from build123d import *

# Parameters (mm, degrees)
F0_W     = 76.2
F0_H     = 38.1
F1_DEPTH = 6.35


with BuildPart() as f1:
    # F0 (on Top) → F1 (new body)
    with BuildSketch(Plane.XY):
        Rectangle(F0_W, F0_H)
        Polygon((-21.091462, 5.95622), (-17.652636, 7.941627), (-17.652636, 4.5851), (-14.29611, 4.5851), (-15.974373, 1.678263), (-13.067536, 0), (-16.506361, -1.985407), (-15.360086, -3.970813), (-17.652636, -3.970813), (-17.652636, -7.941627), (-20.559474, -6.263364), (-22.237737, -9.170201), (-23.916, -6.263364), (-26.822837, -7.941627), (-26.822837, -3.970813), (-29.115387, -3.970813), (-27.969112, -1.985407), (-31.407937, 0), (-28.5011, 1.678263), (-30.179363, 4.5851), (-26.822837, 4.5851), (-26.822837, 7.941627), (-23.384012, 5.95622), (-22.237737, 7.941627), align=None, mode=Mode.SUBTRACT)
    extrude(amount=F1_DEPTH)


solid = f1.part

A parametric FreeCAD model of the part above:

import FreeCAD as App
import Part
import Sketcher

V = App.Vector
Q = App.Units.Quantity

doc = App.newDocument("Part")
body = doc.addObject("PartDesign::Body", "Body")

# Sketch on XY plane
sketch1 = body.newObject("Sketcher::SketchObject", "Sketch")
sketch1.AttachmentSupport = (doc.getObject("XY_Plane"), [""])
sketch1.MapMode = "FlatFace"
sketch1.addGeometry(Part.LineSegment(V(-38.1, 19.1, 0), V(-38.1, -19.1, 0)), False)
sketch1.addGeometry(Part.LineSegment(V(-38.1, -19.1, 0), V(38.1, -19.1, 0)), False)
sketch1.addGeometry(Part.LineSegment(V(38.1, -19.1, 0), V(38.1, 19.1, 0)), False)
sketch1.addGeometry(Part.LineSegment(V(38.1, 19.1, 0), V(-38.1, 19.1, 0)), False)
sketch1.addGeometry(Part.LineSegment(V(-22.2, 7.9, 0), V(-21.1, 6, 0)), False)
sketch1.addGeometry(Part.LineSegment(V(-21.1, 6, 0), V(-17.7, 7.9, 0)), False)
sketch1.addGeometry(Part.LineSegment(V(-17.7, 7.9, 0), V(-17.7, 4.6, 0)), False)
sketch1.addGeometry(Part.LineSegment(V(-17.7, 4.6, 0), V(-14.3, 4.6, 0)), False)
sketch1.addGeometry(Part.LineSegment(V(-14.3, 4.6, 0), V(-16, 1.7, 0)), False)
sketch1.addGeometry(Part.LineSegment(V(-16, 1.7, 0), V(-13.1, 0, 0)), False)
sketch1.addGeometry(Part.LineSegment(V(-13.1, 0, 0), V(-16.5, -2, 0)), False)
sketch1.addGeometry(Part.LineSegment(V(-16.5, -2, 0), V(-15.4, -4, 0)), False)
sketch1.addGeometry(Part.LineSegment(V(-15.4, -4, 0), V(-17.7, -4, 0)), False)
sketch1.addGeometry(Part.LineSegment(V(-17.7, -4, 0), V(-17.7, -7.9, 0)), False)
sketch1.addGeometry(Part.LineSegment(V(-17.7, -7.9, 0), V(-20.6, -6.3, 0)), False)
sketch1.addGeometry(Part.LineSegment(V(-20.6, -6.3, 0), V(-22.2, -9.2, 0)), False)
sketch1.addGeometry(Part.LineSegment(V(-22.2, -9.2, 0), V(-23.9, -6.3, 0)), False)
sketch1.addGeometry(Part.LineSegment(V(-23.9, -6.3, 0), V(-26.8, -7.9, 0)), False)
sketch1.addGeometry(Part.LineSegment(V(-26.8, -7.9, 0), V(-26.8, -4, 0)), False)
sketch1.addGeometry(Part.LineSegment(V(-26.8, -4, 0), V(-29.1, -4, 0)), False)
sketch1.addGeometry(Part.LineSegment(V(-29.1, -4, 0), V(-28, -2, 0)), False)
sketch1.addGeometry(Part.LineSegment(V(-28, -2, 0), V(-31.4, 0, 0)), False)
sketch1.addGeometry(Part.LineSegment(V(-31.4, 0, 0), V(-28.5, 1.7, 0)), False)
sketch1.addGeometry(Part.LineSegment(V(-28.5, 1.7, 0), V(-30.2, 4.6, 0)), False)
sketch1.addGeometry(Part.LineSegment(V(-30.2, 4.6, 0), V(-26.8, 4.6, 0)), False)
sketch1.addGeometry(Part.LineSegment(V(-26.8, 4.6, 0), V(-26.8, 7.9, 0)), False)
sketch1.addGeometry(Part.LineSegment(V(-26.8, 7.9, 0), V(-23.4, 6, 0)), False)
sketch1.addGeometry(Part.LineSegment(V(-23.4, 6, 0), V(-22.2, 7.9, 0)), False)
sketch1.addConstraint(Sketcher.Constraint("Coincident", 0, 2, 1, 1))
sketch1.addConstraint(Sketcher.Constraint("Coincident", 1, 2, 2, 1))
sketch1.addConstraint(Sketcher.Constraint("Coincident", 2, 2, 3, 1))
sketch1.addConstraint(Sketcher.Constraint("Coincident", 3, 2, 0, 1))
sketch1.addConstraint(Sketcher.Constraint("Coincident", 4, 2, 5, 1))
sketch1.addConstraint(Sketcher.Constraint("Coincident", 5, 2, 6, 1))
sketch1.addConstraint(Sketcher.Constraint("Coincident", 6, 2, 7, 1))
sketch1.addConstraint(Sketcher.Constraint("Coincident", 7, 2, 8, 1))
sketch1.addConstraint(Sketcher.Constraint("Coincident", 8, 2, 9, 1))
sketch1.addConstraint(Sketcher.Constraint("Coincident", 9, 2, 10, 1))
sketch1.addConstraint(Sketcher.Constraint("Coincident", 10, 2, 11, 1))
sketch1.addConstraint(Sketcher.Constraint("Coincident", 11, 2, 12, 1))
sketch1.addConstraint(Sketcher.Constraint("Coincident", 12, 2, 13, 1))
sketch1.addConstraint(Sketcher.Constraint("Coincident", 13, 2, 14, 1))
sketch1.addConstraint(Sketcher.Constraint("Coincident", 14, 2, 15, 1))
sketch1.addConstraint(Sketcher.Constraint("Coincident", 15, 2, 16, 1))
sketch1.addConstraint(Sketcher.Constraint("Coincident", 16, 2, 17, 1))
sketch1.addConstraint(Sketcher.Constraint("Coincident", 17, 2, 18, 1))
sketch1.addConstraint(Sketcher.Constraint("Coincident", 18, 2, 19, 1))
sketch1.addConstraint(Sketcher.Constraint("Coincident", 19, 2, 20, 1))
sketch1.addConstraint(Sketcher.Constraint("Coincident", 20, 2, 21, 1))
sketch1.addConstraint(Sketcher.Constraint("Coincident", 21, 2, 22, 1))
sketch1.addConstraint(Sketcher.Constraint("Coincident", 22, 2, 23, 1))
sketch1.addConstraint(Sketcher.Constraint("Coincident", 23, 2, 24, 1))
sketch1.addConstraint(Sketcher.Constraint("Coincident", 24, 2, 25, 1))
sketch1.addConstraint(Sketcher.Constraint("Coincident", 25, 2, 26, 1))
sketch1.addConstraint(Sketcher.Constraint("Coincident", 26, 2, 27, 1))
sketch1.addConstraint(Sketcher.Constraint("Coincident", 27, 2, 4, 1))
sketch1.addConstraint(Sketcher.Constraint("Vertical", 0))
sketch1.addConstraint(Sketcher.Constraint("Horizontal", 1))
sketch1.addConstraint(Sketcher.Constraint("Vertical", 2))
sketch1.addConstraint(Sketcher.Constraint("Horizontal", 3))
sketch1.addConstraint(Sketcher.Constraint("Vertical", 6))
sketch1.addConstraint(Sketcher.Constraint("Horizontal", 7))
sketch1.addConstraint(Sketcher.Constraint("Horizontal", 12))
sketch1.addConstraint(Sketcher.Constraint("Vertical", 13))
sketch1.addConstraint(Sketcher.Constraint("Vertical", 18))
sketch1.addConstraint(Sketcher.Constraint("Horizontal", 19))
sketch1.addConstraint(Sketcher.Constraint("Horizontal", 24))
sketch1.addConstraint(Sketcher.Constraint("Vertical", 25))
sketch1.addConstraint(Sketcher.Constraint("Symmetric", 0, 2, 2, 2, -1, 1))
sketch1.addConstraint(Sketcher.Constraint("Symmetric", 5, 2, 13, 2, -1))
sketch1.addConstraint(Sketcher.Constraint("Symmetric", 17, 2, 25, 2, -1))
sketch1.addConstraint(Sketcher.Constraint("PointOnObject", 9, 2, -1))
sketch1.addConstraint(Sketcher.Constraint("PointOnObject", 21, 2, -1))
sketch1.addConstraint(Sketcher.Constraint("Perpendicular", 4, 5))
sketch1.addConstraint(Sketcher.Constraint("Perpendicular", 8, 9))
sketch1.addConstraint(Sketcher.Constraint("Parallel", 5, 10))
sketch1.addConstraint(Sketcher.Constraint("Perpendicular", 10, 11))
sketch1.addConstraint(Sketcher.Constraint("Parallel", 9, 14))
sketch1.addConstraint(Sketcher.Constraint("Perpendicular", 14, 15))
sketch1.addConstraint(Sketcher.Constraint("Parallel", 11, 16))
sketch1.addConstraint(Sketcher.Constraint("Perpendicular", 16, 17))
sketch1.addConstraint(Sketcher.Constraint("Parallel", 15, 20))
sketch1.addConstraint(Sketcher.Constraint("Perpendicular", 20, 21))
sketch1.addConstraint(Sketcher.Constraint("Parallel", 17, 22))
sketch1.addConstraint(Sketcher.Constraint("Perpendicular", 22, 23))
sketch1.addConstraint(Sketcher.Constraint("Parallel", 21, 26))
sketch1.addConstraint(Sketcher.Constraint("Perpendicular", 26, 27))
sketch1.addConstraint(Sketcher.Constraint("Horizontal", 14, 2, 16, 2))
sketch1.addConstraint(Sketcher.Constraint("Horizontal", 13, 2, 17, 2))
sketch1.addConstraint(Sketcher.Constraint("Horizontal", 12, 2, 18, 2))
sketch1.addConstraint(Sketcher.Constraint("Horizontal", 10, 2, 20, 2))
sketch1.addConstraint(Sketcher.Constraint("Horizontal", 8, 2, 22, 2))
sketch1.addConstraint(Sketcher.Constraint("Horizontal", 7, 2, 23, 2))
sketch1.addConstraint(Sketcher.Constraint("Horizontal", 4, 2, 26, 2))
sketch1.addConstraint(Sketcher.Constraint("Horizontal", 25, 2, 27, 2))
sketch1.addConstraint(Sketcher.Constraint("Vertical", 15, 2, 27, 2))
sketch1.addConstraint(Sketcher.Constraint("Equal", 12, 19))
sketch1.addConstraint(Sketcher.Constraint("Equal", 24, 6))
sketch1.addConstraint(Sketcher.Constraint("Equal", 8, 9))
sketch1.addConstraint(Sketcher.Constraint("Equal", 5, 10))
sketch1.addConstraint(Sketcher.Constraint("Equal", 4, 11))
sketch1.addConstraint(Sketcher.Constraint("Equal", 9, 14))
sketch1.addConstraint(Sketcher.Constraint("Equal", 14, 15))
sketch1.addConstraint(Sketcher.Constraint("DistanceX", 1, 1, 1, 2, Q("3 in")))
sketch1.addConstraint(Sketcher.Constraint("DistanceY", 0, 2, 0, 1, Q("1.5 in")))
sketch1.addConstraint(Sketcher.Constraint("Angle", 4, Q("-60.000006 deg")))
sketch1.addConstraint(Sketcher.Constraint("DistanceX", 12, 2, 12, 1, 2.29255))
sketch1.addConstraint(Sketcher.Constraint("DistanceY", -1, 1, 6, 2, 4.5851))
sketch1.addConstraint(Sketcher.Constraint("DistanceX", 16, 2, -1, 1, 23.916))
pad1 = body.newObject("PartDesign::Pad", "Pad")
pad1.Profile = sketch1
pad1.Length = Q("0.25 in")

doc.recompute()
